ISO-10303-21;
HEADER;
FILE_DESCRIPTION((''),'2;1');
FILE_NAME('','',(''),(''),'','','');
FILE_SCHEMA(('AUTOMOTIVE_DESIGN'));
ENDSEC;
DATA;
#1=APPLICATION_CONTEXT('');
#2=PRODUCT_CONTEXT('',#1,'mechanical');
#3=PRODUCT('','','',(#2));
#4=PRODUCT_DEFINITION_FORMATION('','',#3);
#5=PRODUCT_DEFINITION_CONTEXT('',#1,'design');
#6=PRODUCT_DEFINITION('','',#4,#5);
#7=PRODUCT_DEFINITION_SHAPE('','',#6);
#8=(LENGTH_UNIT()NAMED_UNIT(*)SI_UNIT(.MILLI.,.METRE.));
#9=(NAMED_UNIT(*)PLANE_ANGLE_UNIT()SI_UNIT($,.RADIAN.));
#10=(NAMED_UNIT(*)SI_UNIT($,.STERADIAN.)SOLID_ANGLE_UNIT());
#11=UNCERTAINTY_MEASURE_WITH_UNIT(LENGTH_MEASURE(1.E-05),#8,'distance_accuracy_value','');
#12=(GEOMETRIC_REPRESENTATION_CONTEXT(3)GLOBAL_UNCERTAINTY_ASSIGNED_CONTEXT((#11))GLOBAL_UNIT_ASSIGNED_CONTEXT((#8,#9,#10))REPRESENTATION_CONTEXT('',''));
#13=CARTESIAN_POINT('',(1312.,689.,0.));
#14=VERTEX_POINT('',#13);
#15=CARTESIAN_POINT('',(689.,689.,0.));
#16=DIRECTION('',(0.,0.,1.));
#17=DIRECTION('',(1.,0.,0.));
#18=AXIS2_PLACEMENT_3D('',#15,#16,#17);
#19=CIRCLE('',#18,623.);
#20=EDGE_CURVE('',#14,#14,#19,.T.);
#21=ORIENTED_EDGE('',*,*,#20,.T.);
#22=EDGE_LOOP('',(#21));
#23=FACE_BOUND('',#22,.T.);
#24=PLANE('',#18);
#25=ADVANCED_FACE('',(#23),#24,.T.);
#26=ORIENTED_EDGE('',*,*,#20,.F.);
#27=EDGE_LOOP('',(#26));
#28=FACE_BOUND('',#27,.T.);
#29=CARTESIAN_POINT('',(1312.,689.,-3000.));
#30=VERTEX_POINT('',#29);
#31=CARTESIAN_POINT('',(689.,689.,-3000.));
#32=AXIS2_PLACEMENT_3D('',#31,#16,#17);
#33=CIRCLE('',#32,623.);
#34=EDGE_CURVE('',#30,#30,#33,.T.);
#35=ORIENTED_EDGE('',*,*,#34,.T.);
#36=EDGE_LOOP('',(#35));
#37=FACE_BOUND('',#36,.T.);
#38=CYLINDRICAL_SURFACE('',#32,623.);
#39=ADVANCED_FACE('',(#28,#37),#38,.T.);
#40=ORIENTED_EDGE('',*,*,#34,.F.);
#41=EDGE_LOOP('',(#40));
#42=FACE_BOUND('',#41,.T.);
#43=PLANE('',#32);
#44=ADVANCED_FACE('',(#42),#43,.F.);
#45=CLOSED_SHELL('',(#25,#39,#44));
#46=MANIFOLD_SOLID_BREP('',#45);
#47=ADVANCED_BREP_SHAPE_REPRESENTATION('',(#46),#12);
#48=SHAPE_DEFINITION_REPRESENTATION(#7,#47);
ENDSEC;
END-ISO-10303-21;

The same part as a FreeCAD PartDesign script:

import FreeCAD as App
import Part
import Sketcher

doc = App.newDocument("Part")
body = doc.addObject("PartDesign::Body", "Body")

sketch1 = body.newObject("Sketcher::SketchObject", "Sketch")
sketch1.AttachmentSupport = (doc.getObject("XY_Plane"), [""])
sketch1.MapMode = "FlatFace"
sketch1.addGeometry(Part.Circle(App.Vector(689, 689, 0), App.Vector(0, 0, 1), 623), False)
sketch1.addConstraint([
    Sketcher.Constraint("Diameter", 0, 1246.0),
    Sketcher.Constraint("DistanceX", -1, 1, 0, 3, 689.0),
    Sketcher.Constraint("DistanceY", -1, 1, 0, 3, 689.0),
])
pad1 = body.newObject("PartDesign::Pad", "Pad")
pad1.Profile = sketch1
pad1.Length = 3000
pad1.Reversed = True

doc.recompute()
